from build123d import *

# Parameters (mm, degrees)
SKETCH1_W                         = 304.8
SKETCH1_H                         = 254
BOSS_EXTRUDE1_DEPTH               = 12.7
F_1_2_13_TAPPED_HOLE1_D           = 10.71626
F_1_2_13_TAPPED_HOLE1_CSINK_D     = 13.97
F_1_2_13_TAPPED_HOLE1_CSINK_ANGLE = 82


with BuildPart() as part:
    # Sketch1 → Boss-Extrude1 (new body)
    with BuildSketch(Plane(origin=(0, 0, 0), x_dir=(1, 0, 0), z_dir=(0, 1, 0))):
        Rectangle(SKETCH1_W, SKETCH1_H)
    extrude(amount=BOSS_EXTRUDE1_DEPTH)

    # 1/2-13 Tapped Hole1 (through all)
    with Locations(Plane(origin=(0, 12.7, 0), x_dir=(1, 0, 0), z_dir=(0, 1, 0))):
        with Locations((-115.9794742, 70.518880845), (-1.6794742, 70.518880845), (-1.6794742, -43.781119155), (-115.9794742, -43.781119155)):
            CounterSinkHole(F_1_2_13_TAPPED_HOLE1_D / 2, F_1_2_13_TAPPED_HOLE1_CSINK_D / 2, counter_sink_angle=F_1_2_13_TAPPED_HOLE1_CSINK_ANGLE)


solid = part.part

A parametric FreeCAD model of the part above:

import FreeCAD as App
import Part
import Sketcher
Q = App.Units.Quantity


def add_polygon(sketch, points):
    """Adds a closed chain of lines whose ends are joined by coincident constraints."""
    first, n = sketch.GeometryCount, len(points)
    for a, b in zip(points, points[1:] + points[:1]):
        sketch.addGeometry(Part.LineSegment(App.Vector(*a, 0), App.Vector(*b, 0)), False)
    for i in range(n):
        sketch.addConstraint(Sketcher.Constraint("Coincident", first + i, 2, first + (i + 1) % n, 1))

doc = App.newDocument("Part")
body = doc.addObject("PartDesign::Body", "Body")

# Sketch on XZ plane
sketch1 = doc.addObject("Sketcher::SketchObject", "Sketch")
body.addObject(sketch1)
sketch1.AttachmentSupport = (doc.XZ_Plane, [""])
sketch1.MapMode = "FlatFace"
add_polygon(sketch1, [(-152, -127), (-152, 127), (152, 127), (152, -127)])  # lines 0-3
sketch1.addConstraint([
    Sketcher.Constraint("Vertical", 0),
    Sketcher.Constraint("Horizontal", 1),
    Sketcher.Constraint("Vertical", 2),
    Sketcher.Constraint("Horizontal", 3),
    Sketcher.Constraint("Symmetric", 0, 2, 2, 2, -1, 1),
    Sketcher.Constraint("DistanceX", 1, 1, 1, 2, Q("12 in")),
    Sketcher.Constraint("DistanceY", 0, 1, 0, 2, Q("10 in")),
])
pad1 = doc.addObject("PartDesign::Pad", "Pad")
body.addObject(pad1)
pad1.Profile = sketch1
pad1.Length = Q("0.5 in")
pad1.Reversed = True

# Sketch on XZ plane
sketch2 = doc.addObject("Sketcher::SketchObject", "Sketch001")
body.addObject(sketch2)
sketch2.AttachmentSupport = (doc.XZ_Plane, [""])
sketch2.MapMode = "FlatFace"
sketch2.AttachmentOffset = App.Placement(App.Vector(0, 0, -0.5 * 25.4), App.Rotation())
sketch2.addGeometry([
    Part.Circle(App.Vector(-116, -71, 0), App.Vector(0, 0, 1), 5),
    Part.Circle(App.Vector(-2, -71, 0), App.Vector(0, 0, 1), 5),
    Part.Circle(App.Vector(-2, 44, 0), App.Vector(0, 0, 1), 5),
    Part.Circle(App.Vector(-116, 44, 0), App.Vector(0, 0, 1), 5),
], False)
sketch2.addConstraint([
    Sketcher.Constraint("Equal", 0, 1),
    Sketcher.Constraint("Equal", 1, 2),
    Sketcher.Constraint("Equal", 2, 3),
    Sketcher.Constraint("Horizontal", 0, 3, 1, 3),
    Sketcher.Constraint("Horizontal", 2, 3, 3, 3),
    Sketcher.Constraint("Vertical", 1, 3, 2, 3),
    Sketcher.Constraint("Vertical", 0, 3, 3, 3),
    Sketcher.Constraint("Diameter", 0, Q("0.4219 in")),
    Sketcher.Constraint("DistanceX", 0, 3, 1, 3, Q("4.5 in")),
    Sketcher.Constraint("DistanceY", 1, 3, 2, 3, Q("4.5 in")),
    Sketcher.Constraint("DistanceY", 0, 3, -1, 1, Q("70.518881 mm")),
    Sketcher.Constraint("DistanceX", 0, 3, -1, 1, Q("115.979474 mm")),
])
doc.recompute()
hole = doc.addObject("PartDesign::Hole", "Hole")
body.addObject(hole)
hole.Profile = sketch2
hole.ThreadType = "None"
hole.Diameter = Q("0.4219 in")
hole.DepthType = "ThroughAll"
hole.HoleCutType = "Countersink"
hole.HoleCutDiameter = Q("0.55 in")
hole.HoleCutCountersinkAngle = 82
hole.Reversed = True

doc.recompute()
